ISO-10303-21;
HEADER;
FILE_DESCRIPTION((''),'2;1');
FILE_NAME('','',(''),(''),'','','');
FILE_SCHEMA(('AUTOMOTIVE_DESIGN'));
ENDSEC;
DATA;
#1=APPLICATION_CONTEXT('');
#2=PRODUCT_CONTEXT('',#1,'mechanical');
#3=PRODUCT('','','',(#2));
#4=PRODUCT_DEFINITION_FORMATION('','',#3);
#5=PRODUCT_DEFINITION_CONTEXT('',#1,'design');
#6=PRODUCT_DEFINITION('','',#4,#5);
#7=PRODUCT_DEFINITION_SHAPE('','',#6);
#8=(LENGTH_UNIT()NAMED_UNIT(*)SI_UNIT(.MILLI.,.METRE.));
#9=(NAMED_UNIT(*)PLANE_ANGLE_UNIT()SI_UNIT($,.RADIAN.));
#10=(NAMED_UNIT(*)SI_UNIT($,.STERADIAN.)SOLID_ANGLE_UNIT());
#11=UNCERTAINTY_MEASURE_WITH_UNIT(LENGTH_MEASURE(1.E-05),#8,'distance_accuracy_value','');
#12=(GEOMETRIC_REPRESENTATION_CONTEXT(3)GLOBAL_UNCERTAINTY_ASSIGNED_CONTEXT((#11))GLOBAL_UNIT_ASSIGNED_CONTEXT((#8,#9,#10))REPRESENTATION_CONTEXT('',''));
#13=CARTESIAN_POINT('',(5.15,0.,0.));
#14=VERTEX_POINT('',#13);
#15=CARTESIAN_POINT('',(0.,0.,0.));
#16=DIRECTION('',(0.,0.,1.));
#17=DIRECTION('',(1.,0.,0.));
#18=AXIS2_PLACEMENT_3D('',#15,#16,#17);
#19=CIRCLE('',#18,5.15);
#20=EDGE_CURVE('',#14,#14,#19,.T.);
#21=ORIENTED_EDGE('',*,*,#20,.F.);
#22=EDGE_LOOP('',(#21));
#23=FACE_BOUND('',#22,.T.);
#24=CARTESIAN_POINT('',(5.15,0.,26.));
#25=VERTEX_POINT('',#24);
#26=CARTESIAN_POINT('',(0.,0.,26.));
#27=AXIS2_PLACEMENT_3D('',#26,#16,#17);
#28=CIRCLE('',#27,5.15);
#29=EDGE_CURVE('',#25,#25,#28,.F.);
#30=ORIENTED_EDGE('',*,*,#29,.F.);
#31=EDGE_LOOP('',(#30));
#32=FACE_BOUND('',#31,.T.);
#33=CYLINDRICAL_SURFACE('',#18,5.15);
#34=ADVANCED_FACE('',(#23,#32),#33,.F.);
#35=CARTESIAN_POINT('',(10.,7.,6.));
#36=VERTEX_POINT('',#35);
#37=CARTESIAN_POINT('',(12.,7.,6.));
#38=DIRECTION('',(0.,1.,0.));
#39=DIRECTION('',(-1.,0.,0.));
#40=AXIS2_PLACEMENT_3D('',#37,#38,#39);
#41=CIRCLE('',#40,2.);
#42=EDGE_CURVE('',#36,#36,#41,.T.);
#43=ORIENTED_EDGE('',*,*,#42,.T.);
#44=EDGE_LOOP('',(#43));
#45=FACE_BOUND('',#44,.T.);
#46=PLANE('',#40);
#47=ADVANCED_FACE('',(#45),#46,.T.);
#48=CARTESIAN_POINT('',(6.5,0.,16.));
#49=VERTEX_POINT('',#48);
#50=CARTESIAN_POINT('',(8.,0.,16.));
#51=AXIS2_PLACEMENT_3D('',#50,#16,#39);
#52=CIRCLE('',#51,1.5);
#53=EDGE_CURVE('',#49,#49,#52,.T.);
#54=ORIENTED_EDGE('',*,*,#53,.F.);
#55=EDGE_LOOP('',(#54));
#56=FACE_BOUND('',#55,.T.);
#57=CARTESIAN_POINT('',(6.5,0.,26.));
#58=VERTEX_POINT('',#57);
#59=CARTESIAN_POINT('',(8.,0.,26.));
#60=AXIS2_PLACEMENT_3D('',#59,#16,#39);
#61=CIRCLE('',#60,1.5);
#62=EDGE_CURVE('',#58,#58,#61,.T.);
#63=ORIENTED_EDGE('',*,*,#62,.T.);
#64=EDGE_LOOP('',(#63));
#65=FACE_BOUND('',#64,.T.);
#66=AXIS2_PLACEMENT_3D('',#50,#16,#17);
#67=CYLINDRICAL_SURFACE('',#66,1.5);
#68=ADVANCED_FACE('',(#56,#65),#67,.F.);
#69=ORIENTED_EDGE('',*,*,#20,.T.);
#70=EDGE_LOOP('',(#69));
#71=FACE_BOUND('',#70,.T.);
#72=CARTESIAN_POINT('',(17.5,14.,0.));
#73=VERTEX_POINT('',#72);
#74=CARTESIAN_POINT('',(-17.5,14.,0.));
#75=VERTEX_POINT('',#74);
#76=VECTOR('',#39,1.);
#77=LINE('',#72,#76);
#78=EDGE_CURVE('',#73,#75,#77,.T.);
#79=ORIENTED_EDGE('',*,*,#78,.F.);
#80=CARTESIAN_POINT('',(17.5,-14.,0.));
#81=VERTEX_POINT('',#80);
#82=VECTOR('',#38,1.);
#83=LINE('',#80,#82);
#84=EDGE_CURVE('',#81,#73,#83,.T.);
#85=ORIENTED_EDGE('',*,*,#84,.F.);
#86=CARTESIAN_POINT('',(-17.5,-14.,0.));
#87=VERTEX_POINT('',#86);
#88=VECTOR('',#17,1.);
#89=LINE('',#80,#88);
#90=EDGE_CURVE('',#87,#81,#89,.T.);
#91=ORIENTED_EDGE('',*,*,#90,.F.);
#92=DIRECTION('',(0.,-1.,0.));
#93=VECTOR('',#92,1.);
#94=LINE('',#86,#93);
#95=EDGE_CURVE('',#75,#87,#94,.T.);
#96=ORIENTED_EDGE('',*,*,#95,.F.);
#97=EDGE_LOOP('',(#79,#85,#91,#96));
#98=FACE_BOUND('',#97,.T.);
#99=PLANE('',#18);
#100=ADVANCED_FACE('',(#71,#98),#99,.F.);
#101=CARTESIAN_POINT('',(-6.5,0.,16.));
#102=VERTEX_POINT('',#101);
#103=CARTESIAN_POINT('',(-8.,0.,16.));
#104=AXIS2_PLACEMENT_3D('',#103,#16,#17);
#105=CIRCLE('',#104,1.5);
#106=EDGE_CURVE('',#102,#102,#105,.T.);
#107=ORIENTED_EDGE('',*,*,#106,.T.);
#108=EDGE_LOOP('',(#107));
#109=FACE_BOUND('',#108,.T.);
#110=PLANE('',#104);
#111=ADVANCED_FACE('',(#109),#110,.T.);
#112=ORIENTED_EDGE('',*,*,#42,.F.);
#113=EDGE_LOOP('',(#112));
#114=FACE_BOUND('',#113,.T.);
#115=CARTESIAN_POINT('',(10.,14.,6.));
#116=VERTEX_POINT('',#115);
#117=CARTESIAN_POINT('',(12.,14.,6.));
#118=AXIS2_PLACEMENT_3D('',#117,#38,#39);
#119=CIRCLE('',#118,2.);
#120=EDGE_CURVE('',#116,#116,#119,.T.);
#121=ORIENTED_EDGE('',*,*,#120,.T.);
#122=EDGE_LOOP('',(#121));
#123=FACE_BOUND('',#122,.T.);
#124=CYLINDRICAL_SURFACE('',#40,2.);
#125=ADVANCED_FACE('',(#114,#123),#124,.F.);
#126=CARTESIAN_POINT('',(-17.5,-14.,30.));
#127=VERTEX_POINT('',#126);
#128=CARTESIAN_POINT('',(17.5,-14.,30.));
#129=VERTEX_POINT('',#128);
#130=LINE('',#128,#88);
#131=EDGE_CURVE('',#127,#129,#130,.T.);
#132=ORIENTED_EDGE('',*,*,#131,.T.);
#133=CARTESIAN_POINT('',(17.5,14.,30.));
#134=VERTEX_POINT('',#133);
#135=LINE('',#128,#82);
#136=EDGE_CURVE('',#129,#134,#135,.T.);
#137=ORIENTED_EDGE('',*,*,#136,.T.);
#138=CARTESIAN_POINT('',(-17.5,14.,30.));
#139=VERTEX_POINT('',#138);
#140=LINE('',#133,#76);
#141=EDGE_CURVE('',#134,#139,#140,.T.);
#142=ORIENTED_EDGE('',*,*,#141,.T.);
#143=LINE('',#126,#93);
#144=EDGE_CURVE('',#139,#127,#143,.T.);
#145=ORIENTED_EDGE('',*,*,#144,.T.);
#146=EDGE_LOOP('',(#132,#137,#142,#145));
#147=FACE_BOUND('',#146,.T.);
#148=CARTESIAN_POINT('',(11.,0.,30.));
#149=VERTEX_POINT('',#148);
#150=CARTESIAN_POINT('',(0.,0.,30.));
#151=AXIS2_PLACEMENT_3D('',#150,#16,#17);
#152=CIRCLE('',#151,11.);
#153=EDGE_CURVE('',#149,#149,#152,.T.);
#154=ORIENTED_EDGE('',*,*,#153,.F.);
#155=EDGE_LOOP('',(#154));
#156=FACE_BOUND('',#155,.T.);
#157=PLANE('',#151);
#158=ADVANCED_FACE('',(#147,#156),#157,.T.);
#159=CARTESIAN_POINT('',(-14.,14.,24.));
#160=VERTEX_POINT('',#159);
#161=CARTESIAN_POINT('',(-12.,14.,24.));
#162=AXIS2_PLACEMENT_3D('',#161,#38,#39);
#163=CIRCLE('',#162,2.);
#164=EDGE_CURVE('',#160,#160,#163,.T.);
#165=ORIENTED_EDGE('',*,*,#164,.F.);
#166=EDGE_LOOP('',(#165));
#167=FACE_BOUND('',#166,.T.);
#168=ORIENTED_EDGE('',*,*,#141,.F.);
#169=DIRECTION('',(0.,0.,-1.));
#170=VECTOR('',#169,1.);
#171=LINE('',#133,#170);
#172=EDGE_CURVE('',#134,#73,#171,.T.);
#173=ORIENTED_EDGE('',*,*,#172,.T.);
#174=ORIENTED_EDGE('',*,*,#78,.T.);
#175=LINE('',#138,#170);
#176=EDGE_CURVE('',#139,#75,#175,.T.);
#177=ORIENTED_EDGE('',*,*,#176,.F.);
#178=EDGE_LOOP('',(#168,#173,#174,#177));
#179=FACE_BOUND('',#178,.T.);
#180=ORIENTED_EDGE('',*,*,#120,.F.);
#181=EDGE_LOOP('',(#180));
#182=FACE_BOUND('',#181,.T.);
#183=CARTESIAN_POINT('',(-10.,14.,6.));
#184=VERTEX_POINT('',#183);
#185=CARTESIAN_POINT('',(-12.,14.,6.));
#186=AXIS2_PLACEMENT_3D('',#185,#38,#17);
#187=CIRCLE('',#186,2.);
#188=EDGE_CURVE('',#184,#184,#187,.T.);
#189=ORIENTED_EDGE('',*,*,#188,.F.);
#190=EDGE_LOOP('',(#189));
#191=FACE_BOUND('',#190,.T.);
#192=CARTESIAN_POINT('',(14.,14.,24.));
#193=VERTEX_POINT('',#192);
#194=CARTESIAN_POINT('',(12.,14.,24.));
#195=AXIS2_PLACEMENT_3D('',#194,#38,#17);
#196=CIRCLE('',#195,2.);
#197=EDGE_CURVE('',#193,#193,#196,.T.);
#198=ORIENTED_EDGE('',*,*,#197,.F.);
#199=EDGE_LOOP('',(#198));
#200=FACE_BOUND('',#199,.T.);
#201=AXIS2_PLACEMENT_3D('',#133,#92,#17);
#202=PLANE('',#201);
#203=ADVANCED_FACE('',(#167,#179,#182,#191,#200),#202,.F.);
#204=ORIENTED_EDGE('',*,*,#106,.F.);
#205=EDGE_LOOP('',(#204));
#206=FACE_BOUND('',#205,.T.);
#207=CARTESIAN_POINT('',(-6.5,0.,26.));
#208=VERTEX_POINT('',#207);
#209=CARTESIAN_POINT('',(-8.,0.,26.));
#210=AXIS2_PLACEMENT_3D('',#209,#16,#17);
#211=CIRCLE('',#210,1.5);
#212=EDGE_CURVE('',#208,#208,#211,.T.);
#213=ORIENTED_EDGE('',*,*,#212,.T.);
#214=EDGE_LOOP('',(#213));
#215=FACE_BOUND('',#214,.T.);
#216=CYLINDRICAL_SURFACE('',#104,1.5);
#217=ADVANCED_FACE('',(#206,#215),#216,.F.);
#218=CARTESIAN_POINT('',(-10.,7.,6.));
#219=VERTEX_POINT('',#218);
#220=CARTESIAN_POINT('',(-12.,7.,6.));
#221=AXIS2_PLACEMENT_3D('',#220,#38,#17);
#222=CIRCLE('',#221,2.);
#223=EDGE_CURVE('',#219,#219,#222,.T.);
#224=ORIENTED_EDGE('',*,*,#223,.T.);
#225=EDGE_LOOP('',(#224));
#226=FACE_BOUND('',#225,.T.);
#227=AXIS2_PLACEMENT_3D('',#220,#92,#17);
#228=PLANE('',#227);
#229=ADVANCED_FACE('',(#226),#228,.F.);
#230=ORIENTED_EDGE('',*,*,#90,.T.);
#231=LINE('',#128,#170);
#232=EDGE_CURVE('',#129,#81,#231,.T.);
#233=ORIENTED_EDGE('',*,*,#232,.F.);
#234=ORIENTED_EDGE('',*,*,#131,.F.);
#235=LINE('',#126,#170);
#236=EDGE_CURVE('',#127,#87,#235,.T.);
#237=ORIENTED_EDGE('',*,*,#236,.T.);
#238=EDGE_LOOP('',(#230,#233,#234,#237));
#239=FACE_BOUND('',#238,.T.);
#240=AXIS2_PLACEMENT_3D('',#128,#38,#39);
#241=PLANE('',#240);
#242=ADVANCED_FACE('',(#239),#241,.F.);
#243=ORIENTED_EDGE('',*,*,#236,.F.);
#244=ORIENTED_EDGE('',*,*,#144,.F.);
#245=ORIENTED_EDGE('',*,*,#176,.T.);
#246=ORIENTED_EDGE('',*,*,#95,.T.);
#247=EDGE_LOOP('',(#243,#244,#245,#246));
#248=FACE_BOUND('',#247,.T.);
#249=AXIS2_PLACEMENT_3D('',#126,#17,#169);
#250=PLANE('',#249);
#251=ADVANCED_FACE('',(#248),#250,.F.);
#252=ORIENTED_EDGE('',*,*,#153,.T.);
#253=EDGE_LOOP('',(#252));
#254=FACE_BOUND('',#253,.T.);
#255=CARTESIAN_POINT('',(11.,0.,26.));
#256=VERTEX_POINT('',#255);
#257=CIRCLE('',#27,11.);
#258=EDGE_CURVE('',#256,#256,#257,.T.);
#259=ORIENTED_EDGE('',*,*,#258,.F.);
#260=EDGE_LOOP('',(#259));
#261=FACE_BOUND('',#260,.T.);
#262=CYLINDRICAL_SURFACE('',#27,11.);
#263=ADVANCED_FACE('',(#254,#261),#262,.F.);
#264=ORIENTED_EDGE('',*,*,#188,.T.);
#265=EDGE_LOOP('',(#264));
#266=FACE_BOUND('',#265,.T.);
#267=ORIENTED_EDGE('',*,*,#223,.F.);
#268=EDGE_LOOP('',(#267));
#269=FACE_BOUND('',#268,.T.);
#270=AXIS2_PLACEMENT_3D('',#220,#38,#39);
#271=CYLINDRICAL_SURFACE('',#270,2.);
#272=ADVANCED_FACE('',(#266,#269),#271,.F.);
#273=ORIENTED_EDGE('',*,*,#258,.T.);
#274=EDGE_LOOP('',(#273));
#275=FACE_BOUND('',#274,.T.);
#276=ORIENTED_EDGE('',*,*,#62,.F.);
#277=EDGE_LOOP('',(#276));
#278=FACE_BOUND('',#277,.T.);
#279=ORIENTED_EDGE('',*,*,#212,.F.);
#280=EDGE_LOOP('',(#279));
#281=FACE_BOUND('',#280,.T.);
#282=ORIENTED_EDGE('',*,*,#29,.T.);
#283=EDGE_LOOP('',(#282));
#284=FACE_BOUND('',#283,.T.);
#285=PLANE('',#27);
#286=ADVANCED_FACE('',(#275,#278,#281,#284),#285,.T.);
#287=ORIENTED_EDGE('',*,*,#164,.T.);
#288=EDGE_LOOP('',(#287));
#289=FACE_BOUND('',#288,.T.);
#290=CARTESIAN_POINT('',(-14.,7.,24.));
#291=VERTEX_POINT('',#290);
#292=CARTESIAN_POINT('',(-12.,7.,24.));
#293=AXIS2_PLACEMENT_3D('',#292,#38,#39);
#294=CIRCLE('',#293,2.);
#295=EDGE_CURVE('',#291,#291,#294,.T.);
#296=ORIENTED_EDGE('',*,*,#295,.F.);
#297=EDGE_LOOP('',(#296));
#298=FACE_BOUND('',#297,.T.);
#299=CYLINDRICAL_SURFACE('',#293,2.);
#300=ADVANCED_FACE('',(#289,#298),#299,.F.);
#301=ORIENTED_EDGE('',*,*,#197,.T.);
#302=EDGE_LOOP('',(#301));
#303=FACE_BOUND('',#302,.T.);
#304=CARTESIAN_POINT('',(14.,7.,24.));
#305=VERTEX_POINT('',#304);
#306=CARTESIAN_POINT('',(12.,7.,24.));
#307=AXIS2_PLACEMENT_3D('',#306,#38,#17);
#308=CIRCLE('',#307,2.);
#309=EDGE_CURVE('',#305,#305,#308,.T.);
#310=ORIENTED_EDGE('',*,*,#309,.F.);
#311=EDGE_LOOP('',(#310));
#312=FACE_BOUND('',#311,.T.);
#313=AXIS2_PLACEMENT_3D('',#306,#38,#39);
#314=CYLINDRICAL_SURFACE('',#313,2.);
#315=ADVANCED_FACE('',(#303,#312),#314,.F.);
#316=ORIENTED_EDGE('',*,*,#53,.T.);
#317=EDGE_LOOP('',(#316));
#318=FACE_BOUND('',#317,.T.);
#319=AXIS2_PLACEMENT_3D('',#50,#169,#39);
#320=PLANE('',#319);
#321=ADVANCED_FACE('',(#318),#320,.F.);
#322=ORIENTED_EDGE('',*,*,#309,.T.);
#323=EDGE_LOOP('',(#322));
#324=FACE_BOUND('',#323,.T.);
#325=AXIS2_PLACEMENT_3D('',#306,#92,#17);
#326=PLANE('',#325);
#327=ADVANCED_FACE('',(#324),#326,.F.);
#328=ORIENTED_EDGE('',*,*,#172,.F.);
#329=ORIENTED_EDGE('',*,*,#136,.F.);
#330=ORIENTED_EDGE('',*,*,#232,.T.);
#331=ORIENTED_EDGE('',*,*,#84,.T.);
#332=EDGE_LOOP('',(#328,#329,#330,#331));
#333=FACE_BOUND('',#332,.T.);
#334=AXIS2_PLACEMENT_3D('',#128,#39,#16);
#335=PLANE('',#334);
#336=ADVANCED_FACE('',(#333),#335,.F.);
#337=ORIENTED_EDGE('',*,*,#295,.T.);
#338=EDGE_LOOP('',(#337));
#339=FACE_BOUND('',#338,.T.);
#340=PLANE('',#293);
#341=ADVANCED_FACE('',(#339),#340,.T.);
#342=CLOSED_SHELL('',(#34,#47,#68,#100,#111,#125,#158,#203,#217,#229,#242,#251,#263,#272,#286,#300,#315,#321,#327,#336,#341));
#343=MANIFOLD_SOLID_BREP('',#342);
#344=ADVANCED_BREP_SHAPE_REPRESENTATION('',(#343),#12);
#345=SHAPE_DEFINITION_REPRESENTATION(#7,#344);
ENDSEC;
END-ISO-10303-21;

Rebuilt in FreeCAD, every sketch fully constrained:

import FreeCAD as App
import Part
import Sketcher

V = App.Vector
Q = App.Units.Quantity

doc = App.newDocument("Part")
body = doc.addObject("PartDesign::Body", "Body")

# Sketch on XY plane
sketch1 = doc.addObject("Sketcher::SketchObject", "Sketch")
body.addObject(sketch1)
sketch1.AttachmentSupport = (doc.XY_Plane, [""])
sketch1.MapMode = "FlatFace"
sketch1.addGeometry(Part.LineSegment(V(-18, 14, 0), V(-18, -14, 0)), False)
sketch1.addGeometry(Part.LineSegment(V(-18, -14, 0), V(18, -14, 0)), False)
sketch1.addGeometry(Part.LineSegment(V(18, -14, 0), V(18, 14, 0)), False)
sketch1.addGeometry(Part.LineSegment(V(18, 14, 0), V(-18, 14, 0)), False)
sketch1.addConstraint(Sketcher.Constraint("Coincident", 0, 2, 1, 1))
sketch1.addConstraint(Sketcher.Constraint("Coincident", 1, 2, 2, 1))
sketch1.addConstraint(Sketcher.Constraint("Coincident", 2, 2, 3, 1))
sketch1.addConstraint(Sketcher.Constraint("Coincident", 3, 2, 0, 1))
sketch1.addConstraint(Sketcher.Constraint("Vertical", 0))
sketch1.addConstraint(Sketcher.Constraint("Horizontal", 1))
sketch1.addConstraint(Sketcher.Constraint("Vertical", 2))
sketch1.addConstraint(Sketcher.Constraint("Horizontal", 3))
sketch1.addConstraint(Sketcher.Constraint("Symmetric", 0, 2, 2, 2, -1, 1))
sketch1.addConstraint(Sketcher.Constraint("DistanceX", 1, 1, 1, 2, Q("35 mm")))
sketch1.addConstraint(Sketcher.Constraint("DistanceY", 0, 2, 0, 1, Q("28 mm")))
pad1 = doc.addObject("PartDesign::Pad", "Pad")
body.addObject(pad1)
pad1.Profile = sketch1
pad1.Length = 30

# Sketch on XY plane
sketch2 = doc.addObject("Sketcher::SketchObject", "Sketch001")
body.addObject(sketch2)
sketch2.AttachmentSupport = (doc.XY_Plane, [""])
sketch2.MapMode = "FlatFace"
sketch2.AttachmentOffset = App.Placement(V(0, 0, 30), App.Rotation())
sketch2.addGeometry(Part.Circle(V(0, 0, 0), V(0, 0, 1), 5), False)
sketch2.addConstraint(Sketcher.Constraint("Coincident", 0, 3, -1, 1))
sketch2.addConstraint(Sketcher.Constraint("Diameter", 0, Q("10.3 mm")))
pocket1 = doc.addObject("PartDesign::Pocket", "Pocket")
body.addObject(pocket1)
pocket1.Profile = sketch2
pocket1.Type = "ThroughAll"

# Sketch on XY plane
sketch3 = doc.addObject("Sketcher::SketchObject", "Sketch002")
body.addObject(sketch3)
sketch3.AttachmentSupport = (doc.XY_Plane, [""])
sketch3.MapMode = "FlatFace"
sketch3.AttachmentOffset = App.Placement(V(0, 0, 30), App.Rotation())
sketch3.addGeometry(Part.Circle(V(0, 0, 0), V(0, 0, 1), 11), False)
sketch3.addConstraint(Sketcher.Constraint("Coincident", 0, 3, -1, 1))
sketch3.addConstraint(Sketcher.Constraint("Diameter", 0, Q("22 mm")))
pocket2 = doc.addObject("PartDesign::Pocket", "Pocket001")
body.addObject(pocket2)
pocket2.Profile = sketch3
pocket2.Length = 4

# Sketch on XY plane
sketch4 = doc.addObject("Sketcher::SketchObject", "Sketch003")
body.addObject(sketch4)
sketch4.AttachmentSupport = (doc.XY_Plane, [""])
sketch4.MapMode = "FlatFace"
sketch4.AttachmentOffset = App.Placement(V(0, 0, 26), App.Rotation())
sketch4.addGeometry(Part.Circle(V(-8, 0, 0), V(0, 0, 1), 1.5), False)
sketch4.addGeometry(Part.Circle(V(8, 0, 0), V(0, 0, 1), 1.5), False)
sketch4.addConstraint(Sketcher.Constraint("Equal", 0, 1))
sketch4.addConstraint(Sketcher.Constraint("Symmetric", 0, 3, 1, 3, -1, 1))
sketch4.addConstraint(Sketcher.Constraint("PointOnObject", 0, 3, -1))
sketch4.addConstraint(Sketcher.Constraint("Diameter", 0, Q("3 mm")))
sketch4.addConstraint(Sketcher.Constraint("DistanceX", 0, 3, -1, 1, Q("8 mm")))
pocket3 = doc.addObject("PartDesign::Pocket", "Pocket002")
body.addObject(pocket3)
pocket3.Profile = sketch4
pocket3.Length = 10

# Sketch on XZ plane
sketch5 = doc.addObject("Sketcher::SketchObject", "Sketch004")
body.addObject(sketch5)
sketch5.AttachmentSupport = (doc.XZ_Plane, [""])
sketch5.MapMode = "FlatFace"
sketch5.AttachmentOffset = App.Placement(V(0, 0, -14), App.Rotation())
sketch5.addGeometry(Part.Circle(V(-12, 24, 0), V(0, 0, 1), 2), False)
sketch5.addGeometry(Part.Circle(V(12, 24, 0), V(0, 0, 1), 2), False)
sketch5.addGeometry(Part.Circle(V(12, 6, 0), V(0, 0, 1), 2), False)
sketch5.addGeometry(Part.Circle(V(-12, 6, 0), V(0, 0, 1), 2), False)
sketch5.addConstraint(Sketcher.Constraint("Equal", 0, 1))
sketch5.addConstraint(Sketcher.Constraint("Equal", 1, 2))
sketch5.addConstraint(Sketcher.Constraint("Equal", 2, 3))
sketch5.addConstraint(Sketcher.Constraint("Symmetric", 0, 3, 1, 3, -2))
sketch5.addConstraint(Sketcher.Constraint("Symmetric", 2, 3, 3, 3, -2))
sketch5.addConstraint(Sketcher.Constraint("Vertical", 1, 3, 2, 3))
sketch5.addConstraint(Sketcher.Constraint("Diameter", 0, Q("4 mm")))
sketch5.addConstraint(Sketcher.Constraint("DistanceX", 0, 3, -1, 1, Q("12 mm")))
sketch5.addConstraint(Sketcher.Constraint("DistanceY", -1, 1, 0, 3, Q("24 mm")))
sketch5.addConstraint(Sketcher.Constraint("DistanceY", -1, 1, 2, 3, Q("6 mm")))
pocket4 = doc.addObject("PartDesign::Pocket", "Pocket003")
body.addObject(pocket4)
pocket4.Profile = sketch5
pocket4.Length = 7
pocket4.Reversed = True

doc.recompute()
